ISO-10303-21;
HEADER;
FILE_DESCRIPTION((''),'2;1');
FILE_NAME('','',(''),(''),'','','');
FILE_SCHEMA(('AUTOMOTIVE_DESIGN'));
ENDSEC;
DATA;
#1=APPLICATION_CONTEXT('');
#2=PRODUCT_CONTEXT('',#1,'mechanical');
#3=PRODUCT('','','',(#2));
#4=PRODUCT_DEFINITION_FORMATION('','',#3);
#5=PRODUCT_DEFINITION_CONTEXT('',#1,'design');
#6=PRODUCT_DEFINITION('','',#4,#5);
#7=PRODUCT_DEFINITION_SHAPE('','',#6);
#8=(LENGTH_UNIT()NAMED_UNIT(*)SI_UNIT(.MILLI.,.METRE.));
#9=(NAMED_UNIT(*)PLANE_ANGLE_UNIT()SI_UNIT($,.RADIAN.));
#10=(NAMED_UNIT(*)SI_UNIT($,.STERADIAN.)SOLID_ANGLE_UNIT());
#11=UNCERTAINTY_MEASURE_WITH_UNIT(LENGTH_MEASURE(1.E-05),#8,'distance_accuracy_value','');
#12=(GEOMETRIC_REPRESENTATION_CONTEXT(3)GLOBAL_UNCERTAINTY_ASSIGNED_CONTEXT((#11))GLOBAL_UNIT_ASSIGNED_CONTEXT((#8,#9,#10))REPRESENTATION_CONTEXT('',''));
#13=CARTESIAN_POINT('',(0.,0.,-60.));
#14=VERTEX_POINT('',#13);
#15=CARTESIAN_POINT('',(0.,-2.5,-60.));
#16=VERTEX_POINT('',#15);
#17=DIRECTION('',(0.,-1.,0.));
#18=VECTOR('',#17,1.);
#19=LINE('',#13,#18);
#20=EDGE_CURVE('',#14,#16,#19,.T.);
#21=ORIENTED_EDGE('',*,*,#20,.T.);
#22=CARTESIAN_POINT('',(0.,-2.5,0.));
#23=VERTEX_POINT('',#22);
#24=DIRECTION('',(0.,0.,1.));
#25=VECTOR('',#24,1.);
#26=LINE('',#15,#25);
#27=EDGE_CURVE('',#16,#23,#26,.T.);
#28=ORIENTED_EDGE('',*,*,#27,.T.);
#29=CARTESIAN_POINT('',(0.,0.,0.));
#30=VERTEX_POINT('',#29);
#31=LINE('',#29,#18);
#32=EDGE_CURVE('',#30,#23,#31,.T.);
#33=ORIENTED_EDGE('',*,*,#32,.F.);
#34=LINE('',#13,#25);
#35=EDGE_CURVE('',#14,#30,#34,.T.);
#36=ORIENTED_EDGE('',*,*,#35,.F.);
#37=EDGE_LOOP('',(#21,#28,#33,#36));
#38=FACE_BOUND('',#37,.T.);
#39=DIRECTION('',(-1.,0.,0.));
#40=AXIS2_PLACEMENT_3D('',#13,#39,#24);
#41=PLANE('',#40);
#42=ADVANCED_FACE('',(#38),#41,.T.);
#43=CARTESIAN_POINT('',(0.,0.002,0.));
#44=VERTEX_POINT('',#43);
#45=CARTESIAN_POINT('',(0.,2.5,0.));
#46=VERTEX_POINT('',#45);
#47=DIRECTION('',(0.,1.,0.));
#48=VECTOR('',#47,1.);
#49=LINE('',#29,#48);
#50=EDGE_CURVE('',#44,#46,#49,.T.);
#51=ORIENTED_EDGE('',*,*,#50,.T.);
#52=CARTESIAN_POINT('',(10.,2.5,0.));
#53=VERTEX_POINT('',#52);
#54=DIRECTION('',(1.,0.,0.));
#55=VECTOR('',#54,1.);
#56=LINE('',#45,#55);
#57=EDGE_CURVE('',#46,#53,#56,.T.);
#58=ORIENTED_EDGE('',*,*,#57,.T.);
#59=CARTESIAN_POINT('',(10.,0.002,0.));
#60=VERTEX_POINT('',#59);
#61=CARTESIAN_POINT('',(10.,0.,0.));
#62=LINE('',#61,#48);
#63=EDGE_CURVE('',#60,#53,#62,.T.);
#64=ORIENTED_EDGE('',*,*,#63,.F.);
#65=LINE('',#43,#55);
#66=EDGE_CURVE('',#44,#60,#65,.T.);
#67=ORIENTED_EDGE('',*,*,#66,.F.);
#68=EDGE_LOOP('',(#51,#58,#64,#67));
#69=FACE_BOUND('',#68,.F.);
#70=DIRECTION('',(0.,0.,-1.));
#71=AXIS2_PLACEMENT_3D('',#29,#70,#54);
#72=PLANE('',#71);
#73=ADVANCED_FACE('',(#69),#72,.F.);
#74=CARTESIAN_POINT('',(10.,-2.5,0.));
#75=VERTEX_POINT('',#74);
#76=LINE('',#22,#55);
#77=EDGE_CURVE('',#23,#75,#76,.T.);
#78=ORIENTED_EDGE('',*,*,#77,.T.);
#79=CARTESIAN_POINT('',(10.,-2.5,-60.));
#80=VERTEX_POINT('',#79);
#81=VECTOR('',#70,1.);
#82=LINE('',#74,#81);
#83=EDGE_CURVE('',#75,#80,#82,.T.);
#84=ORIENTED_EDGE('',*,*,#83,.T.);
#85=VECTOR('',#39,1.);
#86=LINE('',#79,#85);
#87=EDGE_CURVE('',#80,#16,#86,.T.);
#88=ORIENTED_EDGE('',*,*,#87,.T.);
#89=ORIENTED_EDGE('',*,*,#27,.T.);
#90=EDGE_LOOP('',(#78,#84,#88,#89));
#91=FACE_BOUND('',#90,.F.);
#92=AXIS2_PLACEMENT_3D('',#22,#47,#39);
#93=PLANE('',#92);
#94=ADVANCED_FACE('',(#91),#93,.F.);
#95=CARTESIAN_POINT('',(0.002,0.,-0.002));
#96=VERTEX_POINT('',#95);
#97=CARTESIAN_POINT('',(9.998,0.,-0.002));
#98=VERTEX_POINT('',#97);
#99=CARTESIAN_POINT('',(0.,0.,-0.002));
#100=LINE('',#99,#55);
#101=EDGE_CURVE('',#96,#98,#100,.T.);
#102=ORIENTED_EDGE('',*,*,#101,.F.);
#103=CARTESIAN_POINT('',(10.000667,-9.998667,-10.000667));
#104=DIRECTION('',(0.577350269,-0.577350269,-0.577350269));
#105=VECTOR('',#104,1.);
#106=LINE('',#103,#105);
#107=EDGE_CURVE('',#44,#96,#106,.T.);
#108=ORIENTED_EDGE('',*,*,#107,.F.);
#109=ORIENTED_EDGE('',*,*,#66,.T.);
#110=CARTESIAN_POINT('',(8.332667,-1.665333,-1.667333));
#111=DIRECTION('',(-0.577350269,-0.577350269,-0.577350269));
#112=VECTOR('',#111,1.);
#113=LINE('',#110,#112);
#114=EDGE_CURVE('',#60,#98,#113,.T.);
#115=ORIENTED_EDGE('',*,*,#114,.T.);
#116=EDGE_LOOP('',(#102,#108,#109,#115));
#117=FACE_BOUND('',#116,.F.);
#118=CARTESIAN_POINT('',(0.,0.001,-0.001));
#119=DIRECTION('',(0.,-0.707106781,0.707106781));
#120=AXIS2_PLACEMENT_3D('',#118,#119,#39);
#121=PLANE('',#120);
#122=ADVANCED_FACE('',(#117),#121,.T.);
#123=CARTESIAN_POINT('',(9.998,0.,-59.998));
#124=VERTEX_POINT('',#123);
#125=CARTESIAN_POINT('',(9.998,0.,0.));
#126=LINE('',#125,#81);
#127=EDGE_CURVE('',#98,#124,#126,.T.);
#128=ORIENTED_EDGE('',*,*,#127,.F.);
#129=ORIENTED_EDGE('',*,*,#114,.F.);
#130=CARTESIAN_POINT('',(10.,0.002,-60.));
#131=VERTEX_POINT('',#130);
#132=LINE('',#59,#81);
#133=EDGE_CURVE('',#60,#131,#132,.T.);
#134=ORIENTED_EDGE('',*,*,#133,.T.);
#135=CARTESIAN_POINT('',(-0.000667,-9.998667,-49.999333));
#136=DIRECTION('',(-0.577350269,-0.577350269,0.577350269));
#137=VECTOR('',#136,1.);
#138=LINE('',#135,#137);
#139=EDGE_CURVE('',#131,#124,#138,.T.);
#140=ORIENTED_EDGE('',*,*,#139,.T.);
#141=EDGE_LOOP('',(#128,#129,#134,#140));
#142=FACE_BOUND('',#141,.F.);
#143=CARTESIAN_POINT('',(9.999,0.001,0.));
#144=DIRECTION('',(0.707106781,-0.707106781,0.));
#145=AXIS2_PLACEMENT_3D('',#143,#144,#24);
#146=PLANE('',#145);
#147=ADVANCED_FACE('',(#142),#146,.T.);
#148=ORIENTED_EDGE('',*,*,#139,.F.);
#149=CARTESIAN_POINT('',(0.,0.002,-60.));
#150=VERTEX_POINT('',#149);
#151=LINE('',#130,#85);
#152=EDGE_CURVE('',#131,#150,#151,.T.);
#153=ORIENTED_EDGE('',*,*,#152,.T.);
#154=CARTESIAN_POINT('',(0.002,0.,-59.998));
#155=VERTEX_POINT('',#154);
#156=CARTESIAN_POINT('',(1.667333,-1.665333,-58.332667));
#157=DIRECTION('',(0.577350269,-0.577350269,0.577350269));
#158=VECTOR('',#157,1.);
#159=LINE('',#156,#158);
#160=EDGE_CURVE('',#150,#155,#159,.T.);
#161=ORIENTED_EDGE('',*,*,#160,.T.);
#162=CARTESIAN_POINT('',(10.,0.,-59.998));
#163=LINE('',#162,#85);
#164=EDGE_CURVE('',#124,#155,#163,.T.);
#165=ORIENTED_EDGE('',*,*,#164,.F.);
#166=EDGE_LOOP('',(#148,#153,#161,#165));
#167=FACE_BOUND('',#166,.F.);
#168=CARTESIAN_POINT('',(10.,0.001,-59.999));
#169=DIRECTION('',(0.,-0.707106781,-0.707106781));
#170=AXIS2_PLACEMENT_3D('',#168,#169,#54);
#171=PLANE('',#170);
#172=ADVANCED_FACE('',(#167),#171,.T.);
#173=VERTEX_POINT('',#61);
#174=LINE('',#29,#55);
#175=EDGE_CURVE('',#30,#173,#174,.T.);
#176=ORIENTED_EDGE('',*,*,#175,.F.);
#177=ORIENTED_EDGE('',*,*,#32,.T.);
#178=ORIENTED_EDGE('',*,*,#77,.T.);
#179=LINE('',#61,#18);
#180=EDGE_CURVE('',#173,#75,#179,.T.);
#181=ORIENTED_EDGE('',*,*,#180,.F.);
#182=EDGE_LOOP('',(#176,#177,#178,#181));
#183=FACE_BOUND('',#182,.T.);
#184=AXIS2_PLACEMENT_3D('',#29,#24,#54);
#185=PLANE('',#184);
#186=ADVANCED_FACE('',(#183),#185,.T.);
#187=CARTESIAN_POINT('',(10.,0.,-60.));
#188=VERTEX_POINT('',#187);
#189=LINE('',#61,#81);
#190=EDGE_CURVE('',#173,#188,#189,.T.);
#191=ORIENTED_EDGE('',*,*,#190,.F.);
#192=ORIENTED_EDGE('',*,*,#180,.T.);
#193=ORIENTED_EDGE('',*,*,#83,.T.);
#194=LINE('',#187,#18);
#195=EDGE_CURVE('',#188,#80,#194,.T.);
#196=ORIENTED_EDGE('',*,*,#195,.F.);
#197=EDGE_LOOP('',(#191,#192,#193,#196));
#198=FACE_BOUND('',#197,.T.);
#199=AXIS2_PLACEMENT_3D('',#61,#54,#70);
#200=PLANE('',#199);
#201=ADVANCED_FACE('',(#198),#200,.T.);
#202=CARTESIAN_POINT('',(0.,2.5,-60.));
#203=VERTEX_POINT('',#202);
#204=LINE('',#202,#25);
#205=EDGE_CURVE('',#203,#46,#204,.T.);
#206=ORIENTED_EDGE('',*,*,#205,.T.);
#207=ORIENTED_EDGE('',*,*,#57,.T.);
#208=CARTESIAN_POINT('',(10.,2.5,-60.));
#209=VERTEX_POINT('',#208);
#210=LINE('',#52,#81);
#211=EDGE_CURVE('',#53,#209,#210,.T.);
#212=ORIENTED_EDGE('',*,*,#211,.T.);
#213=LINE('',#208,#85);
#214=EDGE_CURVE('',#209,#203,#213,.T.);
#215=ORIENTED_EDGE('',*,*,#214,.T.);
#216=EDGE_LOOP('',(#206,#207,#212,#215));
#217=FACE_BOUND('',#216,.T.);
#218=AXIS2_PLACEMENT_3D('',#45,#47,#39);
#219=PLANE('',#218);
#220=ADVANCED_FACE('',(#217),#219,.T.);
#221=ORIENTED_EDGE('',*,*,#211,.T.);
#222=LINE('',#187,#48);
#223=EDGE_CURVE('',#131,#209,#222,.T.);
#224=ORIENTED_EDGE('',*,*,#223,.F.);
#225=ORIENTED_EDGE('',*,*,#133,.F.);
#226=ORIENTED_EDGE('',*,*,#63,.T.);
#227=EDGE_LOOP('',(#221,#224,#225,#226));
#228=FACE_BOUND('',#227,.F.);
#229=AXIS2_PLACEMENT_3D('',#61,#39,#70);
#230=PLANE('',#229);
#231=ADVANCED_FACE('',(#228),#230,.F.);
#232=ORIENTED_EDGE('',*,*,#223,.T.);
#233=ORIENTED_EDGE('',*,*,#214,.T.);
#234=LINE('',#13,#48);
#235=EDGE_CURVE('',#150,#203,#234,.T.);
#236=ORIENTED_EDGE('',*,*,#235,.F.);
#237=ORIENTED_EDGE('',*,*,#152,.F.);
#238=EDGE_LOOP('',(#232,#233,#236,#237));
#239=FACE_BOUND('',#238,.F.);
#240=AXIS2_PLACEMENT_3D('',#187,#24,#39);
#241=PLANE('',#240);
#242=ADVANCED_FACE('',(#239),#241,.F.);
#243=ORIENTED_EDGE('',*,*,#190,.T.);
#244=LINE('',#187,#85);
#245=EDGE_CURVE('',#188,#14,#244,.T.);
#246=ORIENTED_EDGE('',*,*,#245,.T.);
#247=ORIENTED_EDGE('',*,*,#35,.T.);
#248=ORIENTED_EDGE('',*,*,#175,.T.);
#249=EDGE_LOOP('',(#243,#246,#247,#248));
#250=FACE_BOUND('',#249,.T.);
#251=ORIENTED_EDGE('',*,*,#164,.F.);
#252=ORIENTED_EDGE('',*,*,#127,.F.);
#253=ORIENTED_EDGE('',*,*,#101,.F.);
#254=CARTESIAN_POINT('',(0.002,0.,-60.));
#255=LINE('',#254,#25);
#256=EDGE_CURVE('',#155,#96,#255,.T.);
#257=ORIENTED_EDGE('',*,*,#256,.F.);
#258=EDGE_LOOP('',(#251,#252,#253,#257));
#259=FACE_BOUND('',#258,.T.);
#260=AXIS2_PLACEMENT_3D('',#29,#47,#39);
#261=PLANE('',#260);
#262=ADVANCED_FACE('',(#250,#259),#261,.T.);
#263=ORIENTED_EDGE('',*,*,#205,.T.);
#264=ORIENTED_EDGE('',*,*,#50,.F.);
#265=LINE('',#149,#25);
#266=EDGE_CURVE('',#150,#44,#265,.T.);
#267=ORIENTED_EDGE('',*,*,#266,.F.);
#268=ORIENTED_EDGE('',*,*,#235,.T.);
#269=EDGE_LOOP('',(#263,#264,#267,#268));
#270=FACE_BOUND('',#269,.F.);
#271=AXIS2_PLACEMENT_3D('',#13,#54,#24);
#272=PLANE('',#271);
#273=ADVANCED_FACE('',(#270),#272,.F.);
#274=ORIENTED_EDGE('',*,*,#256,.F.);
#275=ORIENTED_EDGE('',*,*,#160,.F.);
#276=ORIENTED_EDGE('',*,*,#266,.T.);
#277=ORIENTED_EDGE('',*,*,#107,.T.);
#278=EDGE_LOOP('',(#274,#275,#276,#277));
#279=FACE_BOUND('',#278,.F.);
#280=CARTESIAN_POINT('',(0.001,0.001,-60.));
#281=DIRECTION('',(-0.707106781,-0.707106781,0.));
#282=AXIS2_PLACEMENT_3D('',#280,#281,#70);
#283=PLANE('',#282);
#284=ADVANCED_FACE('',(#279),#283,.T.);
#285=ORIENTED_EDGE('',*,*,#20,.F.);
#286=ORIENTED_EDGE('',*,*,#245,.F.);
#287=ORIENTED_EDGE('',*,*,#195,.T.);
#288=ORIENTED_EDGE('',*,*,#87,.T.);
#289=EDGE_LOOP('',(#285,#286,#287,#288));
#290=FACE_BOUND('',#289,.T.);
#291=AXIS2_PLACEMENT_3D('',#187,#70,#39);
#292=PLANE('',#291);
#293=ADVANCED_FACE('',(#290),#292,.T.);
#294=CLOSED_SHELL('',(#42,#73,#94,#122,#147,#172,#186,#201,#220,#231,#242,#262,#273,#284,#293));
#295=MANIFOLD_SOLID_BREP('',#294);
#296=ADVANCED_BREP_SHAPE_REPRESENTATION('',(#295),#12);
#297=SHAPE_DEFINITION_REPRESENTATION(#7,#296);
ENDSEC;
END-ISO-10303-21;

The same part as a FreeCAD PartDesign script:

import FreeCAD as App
import Part
import Sketcher
from FreeCAD import Vector
Q = App.Units.Quantity


def edges_at(feature, points):
    """Names of the edges that pass closest to the given points."""
    edges = feature.Shape.Edges
    near = lambda p: min(range(len(edges)), key=lambda i: edges[i].distToShape(Part.Vertex(*p))[0])
    return sorted({f"Edge{near(p) + 1}" for p in points})

doc = App.newDocument("Part")
body = doc.addObject("PartDesign::Body", "Body")

# Sketch on XZ plane
sketch1 = body.newObject("Sketcher::SketchObject", "Sketch")
sketch1.AttachmentSupport = (doc.getObject("XZ_Plane"), [""])
sketch1.MapMode = "FlatFace"
sketch1.addGeometry(Part.LineSegment(Vector(0, -60, 0), Vector(0, 0, 0)), False)
sketch1.addGeometry(Part.LineSegment(Vector(0, 0, 0), Vector(10, 0, 0)), False)
sketch1.addGeometry(Part.LineSegment(Vector(10, 0, 0), Vector(10, -60, 0)), False)
sketch1.addGeometry(Part.LineSegment(Vector(10, -60, 0), Vector(0, -60, 0)), False)
sketch1.addConstraint(Sketcher.Constraint("Coincident", 0, 2, 1, 1))
sketch1.addConstraint(Sketcher.Constraint("Coincident", 1, 2, 2, 1))
sketch1.addConstraint(Sketcher.Constraint("Coincident", 2, 2, 3, 1))
sketch1.addConstraint(Sketcher.Constraint("Coincident", 3, 2, 0, 1))
sketch1.addConstraint(Sketcher.Constraint("Vertical", 0))
sketch1.addConstraint(Sketcher.Constraint("Horizontal", 1))
sketch1.addConstraint(Sketcher.Constraint("Vertical", 2))
sketch1.addConstraint(Sketcher.Constraint("Horizontal", 3))
sketch1.addConstraint(Sketcher.Constraint("Coincident", 0, 2, -1, 1))
sketch1.addConstraint(Sketcher.Constraint("DistanceX", 1, 1, 1, 2, Q("10 mm")))
sketch1.addConstraint(Sketcher.Constraint("DistanceY", 0, 1, 0, 2, Q("60 mm")))
pad1 = body.newObject("PartDesign::Pad", "Pad")
pad1.Profile = sketch1
pad1.Length = 2.5
pad1.Reversed = True
doc.recompute()

chamfer = body.newObject("PartDesign::Chamfer", "Chamfer")
chamfer.Base = (pad1, edges_at(pad1, [
    (10, 0, -30),
    (5, 0, -60),
    (0, 0, -30),
    (5, 0, 0),
]))
chamfer.Size = 0.002

# Sketch on XZ plane
sketch2 = body.newObject("Sketcher::SketchObject", "Sketch001")
sketch2.AttachmentSupport = (doc.getObject("XZ_Plane"), [""])
sketch2.MapMode = "FlatFace"
sketch2.addGeometry(Part.LineSegment(Vector(0, -60, 0), Vector(0, 0, 0)), False)
sketch2.addGeometry(Part.LineSegment(Vector(0, 0, 0), Vector(10, 0, 0)), False)
sketch2.addGeometry(Part.LineSegment(Vector(10, 0, 0), Vector(10, -60, 0)), False)
sketch2.addGeometry(Part.LineSegment(Vector(10, -60, 0), Vector(0, -60, 0)), False)
sketch2.addConstraint(Sketcher.Constraint("Coincident", 0, 2, 1, 1))
sketch2.addConstraint(Sketcher.Constraint("Coincident", 1, 2, 2, 1))
sketch2.addConstraint(Sketcher.Constraint("Coincident", 2, 2, 3, 1))
sketch2.addConstraint(Sketcher.Constraint("Coincident", 3, 2, 0, 1))
sketch2.addConstraint(Sketcher.Constraint("Vertical", 0))
sketch2.addConstraint(Sketcher.Constraint("Horizontal", 1))
sketch2.addConstraint(Sketcher.Constraint("Vertical", 2))
sketch2.addConstraint(Sketcher.Constraint("Horizontal", 3))
sketch2.addConstraint(Sketcher.Constraint("Coincident", 0, 2, -1, 1))
sketch2.addConstraint(Sketcher.Constraint("DistanceX", 1, 1, 1, 2, Q("10 mm")))
sketch2.addConstraint(Sketcher.Constraint("DistanceY", 0, 1, 0, 2, Q("60 mm")))
pad2 = body.newObject("PartDesign::Pad", "Pad001")
pad2.Profile = sketch2
pad2.Length = 2.5

doc.recompute()
